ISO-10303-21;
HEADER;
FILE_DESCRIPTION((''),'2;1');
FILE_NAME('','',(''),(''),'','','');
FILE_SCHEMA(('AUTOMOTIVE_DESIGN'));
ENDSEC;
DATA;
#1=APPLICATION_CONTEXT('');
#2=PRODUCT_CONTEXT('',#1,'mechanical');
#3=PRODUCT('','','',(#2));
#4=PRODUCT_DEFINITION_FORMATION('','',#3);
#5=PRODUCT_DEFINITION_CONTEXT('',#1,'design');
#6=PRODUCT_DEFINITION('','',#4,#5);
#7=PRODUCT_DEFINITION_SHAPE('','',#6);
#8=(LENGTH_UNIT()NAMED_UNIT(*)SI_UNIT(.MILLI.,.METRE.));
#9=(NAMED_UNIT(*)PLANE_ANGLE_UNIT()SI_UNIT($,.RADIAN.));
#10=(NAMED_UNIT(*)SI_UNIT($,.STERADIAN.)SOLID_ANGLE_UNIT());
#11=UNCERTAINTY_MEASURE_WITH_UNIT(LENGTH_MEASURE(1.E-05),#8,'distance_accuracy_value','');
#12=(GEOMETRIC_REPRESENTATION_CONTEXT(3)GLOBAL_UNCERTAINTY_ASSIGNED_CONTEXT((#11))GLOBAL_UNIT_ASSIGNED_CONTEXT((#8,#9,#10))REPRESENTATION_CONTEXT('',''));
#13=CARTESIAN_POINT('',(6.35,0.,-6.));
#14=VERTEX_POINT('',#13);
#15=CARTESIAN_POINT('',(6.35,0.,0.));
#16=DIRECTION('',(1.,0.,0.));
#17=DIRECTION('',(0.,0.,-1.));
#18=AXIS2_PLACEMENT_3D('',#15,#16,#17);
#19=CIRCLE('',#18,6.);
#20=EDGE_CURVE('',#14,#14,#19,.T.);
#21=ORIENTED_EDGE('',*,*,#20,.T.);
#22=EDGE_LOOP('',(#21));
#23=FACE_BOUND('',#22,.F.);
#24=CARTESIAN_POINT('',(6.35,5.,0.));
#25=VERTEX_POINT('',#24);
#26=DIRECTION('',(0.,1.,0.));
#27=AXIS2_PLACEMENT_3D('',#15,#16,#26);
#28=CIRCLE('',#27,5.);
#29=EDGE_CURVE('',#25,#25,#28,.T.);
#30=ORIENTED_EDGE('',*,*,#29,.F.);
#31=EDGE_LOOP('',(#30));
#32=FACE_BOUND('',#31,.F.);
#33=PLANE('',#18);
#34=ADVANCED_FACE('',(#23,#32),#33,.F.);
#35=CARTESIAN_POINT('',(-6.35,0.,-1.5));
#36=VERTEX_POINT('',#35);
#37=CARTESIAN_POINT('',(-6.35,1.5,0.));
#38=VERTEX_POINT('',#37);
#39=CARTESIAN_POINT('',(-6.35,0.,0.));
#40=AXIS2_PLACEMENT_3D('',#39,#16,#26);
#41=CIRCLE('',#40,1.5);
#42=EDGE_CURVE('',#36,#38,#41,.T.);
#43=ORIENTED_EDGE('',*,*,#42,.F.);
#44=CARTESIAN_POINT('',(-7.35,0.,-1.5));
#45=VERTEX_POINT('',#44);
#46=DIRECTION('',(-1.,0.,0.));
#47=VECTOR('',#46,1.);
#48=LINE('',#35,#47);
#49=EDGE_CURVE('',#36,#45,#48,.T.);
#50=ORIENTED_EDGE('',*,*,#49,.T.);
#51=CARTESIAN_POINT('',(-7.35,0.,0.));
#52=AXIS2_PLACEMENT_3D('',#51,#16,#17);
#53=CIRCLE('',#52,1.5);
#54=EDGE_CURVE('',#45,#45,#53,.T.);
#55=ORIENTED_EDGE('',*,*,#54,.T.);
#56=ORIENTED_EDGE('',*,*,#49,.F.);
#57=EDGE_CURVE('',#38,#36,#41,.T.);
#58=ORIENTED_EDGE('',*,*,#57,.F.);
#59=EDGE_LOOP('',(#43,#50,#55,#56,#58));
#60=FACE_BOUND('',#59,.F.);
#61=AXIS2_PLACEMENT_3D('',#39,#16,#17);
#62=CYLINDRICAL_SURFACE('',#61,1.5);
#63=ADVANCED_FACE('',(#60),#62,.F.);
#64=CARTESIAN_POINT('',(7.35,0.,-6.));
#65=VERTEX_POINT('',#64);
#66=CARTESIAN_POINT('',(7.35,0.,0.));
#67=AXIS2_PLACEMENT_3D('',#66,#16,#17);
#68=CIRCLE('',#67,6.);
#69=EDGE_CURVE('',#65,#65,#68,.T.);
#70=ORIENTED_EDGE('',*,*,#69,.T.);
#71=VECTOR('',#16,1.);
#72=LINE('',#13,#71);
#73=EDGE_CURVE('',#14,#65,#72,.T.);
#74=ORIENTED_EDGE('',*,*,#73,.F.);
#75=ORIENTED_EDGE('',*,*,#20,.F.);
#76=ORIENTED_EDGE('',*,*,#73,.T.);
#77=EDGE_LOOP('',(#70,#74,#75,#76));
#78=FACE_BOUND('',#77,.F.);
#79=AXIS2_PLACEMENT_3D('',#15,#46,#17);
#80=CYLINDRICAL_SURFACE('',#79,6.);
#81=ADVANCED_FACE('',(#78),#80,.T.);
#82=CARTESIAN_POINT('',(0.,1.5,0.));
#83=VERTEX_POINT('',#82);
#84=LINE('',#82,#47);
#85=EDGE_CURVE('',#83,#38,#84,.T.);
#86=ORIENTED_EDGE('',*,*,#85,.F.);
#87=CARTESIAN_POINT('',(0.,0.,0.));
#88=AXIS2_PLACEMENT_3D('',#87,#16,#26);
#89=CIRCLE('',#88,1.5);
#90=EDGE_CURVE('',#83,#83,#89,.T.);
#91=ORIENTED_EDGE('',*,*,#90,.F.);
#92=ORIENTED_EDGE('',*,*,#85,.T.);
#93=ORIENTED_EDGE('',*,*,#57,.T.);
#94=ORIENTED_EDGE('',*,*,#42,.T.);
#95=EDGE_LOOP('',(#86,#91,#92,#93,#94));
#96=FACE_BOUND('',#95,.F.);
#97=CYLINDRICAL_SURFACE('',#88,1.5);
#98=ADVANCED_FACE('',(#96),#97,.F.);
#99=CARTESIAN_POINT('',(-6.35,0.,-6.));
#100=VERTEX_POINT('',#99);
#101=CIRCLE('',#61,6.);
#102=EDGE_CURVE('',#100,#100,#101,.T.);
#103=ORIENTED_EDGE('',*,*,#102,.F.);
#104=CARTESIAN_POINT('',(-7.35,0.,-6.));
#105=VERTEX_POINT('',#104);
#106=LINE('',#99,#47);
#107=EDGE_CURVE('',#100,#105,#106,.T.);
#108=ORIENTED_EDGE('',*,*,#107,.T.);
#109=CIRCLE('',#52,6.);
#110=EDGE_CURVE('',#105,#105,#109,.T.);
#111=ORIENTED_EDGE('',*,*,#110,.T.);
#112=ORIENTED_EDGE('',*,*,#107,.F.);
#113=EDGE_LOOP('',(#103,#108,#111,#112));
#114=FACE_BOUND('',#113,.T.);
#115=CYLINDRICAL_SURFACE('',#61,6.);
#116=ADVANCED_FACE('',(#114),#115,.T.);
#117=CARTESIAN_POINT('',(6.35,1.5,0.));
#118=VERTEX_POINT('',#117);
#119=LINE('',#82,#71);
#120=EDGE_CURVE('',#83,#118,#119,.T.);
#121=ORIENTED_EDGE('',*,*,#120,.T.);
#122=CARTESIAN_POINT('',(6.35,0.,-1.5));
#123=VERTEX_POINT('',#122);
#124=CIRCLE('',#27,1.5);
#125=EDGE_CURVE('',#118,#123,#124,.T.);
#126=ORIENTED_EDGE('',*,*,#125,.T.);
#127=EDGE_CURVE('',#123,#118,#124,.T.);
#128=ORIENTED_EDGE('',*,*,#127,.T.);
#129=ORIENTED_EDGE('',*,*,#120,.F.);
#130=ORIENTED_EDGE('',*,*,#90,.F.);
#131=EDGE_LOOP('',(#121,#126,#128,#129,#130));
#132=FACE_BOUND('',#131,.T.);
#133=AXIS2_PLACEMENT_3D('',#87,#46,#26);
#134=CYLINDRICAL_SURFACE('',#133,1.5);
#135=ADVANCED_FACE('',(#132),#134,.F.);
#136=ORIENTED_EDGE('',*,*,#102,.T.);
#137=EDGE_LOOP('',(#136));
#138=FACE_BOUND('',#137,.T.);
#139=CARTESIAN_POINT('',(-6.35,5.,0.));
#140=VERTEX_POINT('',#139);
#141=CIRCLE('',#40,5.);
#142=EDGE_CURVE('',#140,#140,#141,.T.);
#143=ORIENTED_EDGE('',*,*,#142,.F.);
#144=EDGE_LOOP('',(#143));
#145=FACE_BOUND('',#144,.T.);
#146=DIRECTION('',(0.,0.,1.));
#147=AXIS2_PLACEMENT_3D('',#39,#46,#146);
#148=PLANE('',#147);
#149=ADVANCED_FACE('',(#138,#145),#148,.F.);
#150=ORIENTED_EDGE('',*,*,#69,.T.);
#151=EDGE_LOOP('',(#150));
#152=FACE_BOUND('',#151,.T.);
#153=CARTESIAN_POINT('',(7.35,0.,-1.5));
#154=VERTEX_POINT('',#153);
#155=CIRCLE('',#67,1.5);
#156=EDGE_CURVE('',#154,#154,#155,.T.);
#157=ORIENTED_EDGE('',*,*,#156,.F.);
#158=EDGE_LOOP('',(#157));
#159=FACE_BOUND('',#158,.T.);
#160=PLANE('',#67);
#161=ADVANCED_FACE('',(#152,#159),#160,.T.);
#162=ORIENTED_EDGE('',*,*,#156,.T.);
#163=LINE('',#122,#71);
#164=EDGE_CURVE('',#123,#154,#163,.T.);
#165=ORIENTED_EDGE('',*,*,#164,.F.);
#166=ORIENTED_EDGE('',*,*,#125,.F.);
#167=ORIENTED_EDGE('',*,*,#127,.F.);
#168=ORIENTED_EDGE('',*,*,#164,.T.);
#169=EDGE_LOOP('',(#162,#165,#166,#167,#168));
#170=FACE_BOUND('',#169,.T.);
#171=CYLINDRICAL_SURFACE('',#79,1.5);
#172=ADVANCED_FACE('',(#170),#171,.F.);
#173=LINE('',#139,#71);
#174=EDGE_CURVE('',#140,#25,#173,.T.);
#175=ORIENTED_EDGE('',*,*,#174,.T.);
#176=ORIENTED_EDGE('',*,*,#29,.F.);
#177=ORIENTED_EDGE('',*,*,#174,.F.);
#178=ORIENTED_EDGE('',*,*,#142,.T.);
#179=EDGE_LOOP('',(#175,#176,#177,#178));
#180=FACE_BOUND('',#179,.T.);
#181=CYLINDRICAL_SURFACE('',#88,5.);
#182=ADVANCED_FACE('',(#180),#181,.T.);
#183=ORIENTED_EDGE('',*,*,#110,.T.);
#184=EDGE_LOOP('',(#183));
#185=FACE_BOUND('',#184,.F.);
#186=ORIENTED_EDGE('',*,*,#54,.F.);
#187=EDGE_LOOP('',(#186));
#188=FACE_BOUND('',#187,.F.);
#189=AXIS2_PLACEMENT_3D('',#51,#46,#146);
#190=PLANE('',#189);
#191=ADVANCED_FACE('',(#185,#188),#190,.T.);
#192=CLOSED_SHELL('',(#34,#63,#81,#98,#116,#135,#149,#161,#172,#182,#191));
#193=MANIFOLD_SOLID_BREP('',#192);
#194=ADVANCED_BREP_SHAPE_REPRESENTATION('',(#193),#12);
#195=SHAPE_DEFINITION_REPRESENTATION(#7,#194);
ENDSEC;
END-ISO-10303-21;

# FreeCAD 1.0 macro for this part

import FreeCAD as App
import Part
import Sketcher
Q = App.Units.Quantity

doc = App.newDocument("Part")
body = doc.addObject("PartDesign::Body", "Body")

sketch1 = body.newObject("Sketcher::SketchObject", "Sketch")
sketch1.AttachmentSupport = (doc.getObject("YZ_Plane"), [""])
sketch1.MapMode = "FlatFace"
sketch1.addGeometry([
    Part.Circle(App.Vector(0, 0, 0), App.Vector(0, 0, 1), 5),
    Part.Circle(App.Vector(0, 0, 0), App.Vector(0, 0, 1), 1.5),
], False)
sketch1.addConstraint([
    Sketcher.Constraint("Coincident", 0, 3, -1, 1),
    Sketcher.Constraint("Coincident", 1, 3, -1, 1),
    Sketcher.Constraint("Diameter", 0, Q("10 mm")),
    Sketcher.Constraint("Diameter", 1, Q("3 mm")),
])
pad1 = body.newObject("PartDesign::Pad", "Pad")
pad1.Profile = sketch1
pad1.Length = 12.7
pad1.Midplane = True

sketch2 = body.newObject("Sketcher::SketchObject", "Sketch001")
sketch2.AttachmentSupport = (doc.getObject("YZ_Plane"), [""])
sketch2.MapMode = "FlatFace"
sketch2.AttachmentOffset = App.Placement(App.Vector(0, 0, 6.35), App.Rotation())
sketch2.addGeometry([
    Part.Circle(App.Vector(0, 0, 0), App.Vector(0, 0, 1), 6),
    Part.Circle(App.Vector(0, 0, 0), App.Vector(0, 0, 1), 1.5),
], False)
sketch2.addConstraint([
    Sketcher.Constraint("Coincident", 0, 3, -1, 1),
    Sketcher.Constraint("Coincident", 1, 3, -1, 1),
    Sketcher.Constraint("Diameter", 0, Q("12 mm")),
    Sketcher.Constraint("Diameter", 1, Q("3 mm")),
])
pad2 = body.newObject("PartDesign::Pad", "Pad001")
pad2.Profile = sketch2
pad2.Length = 1
doc.recompute()

mirrored = body.newObject("PartDesign::Mirrored", "Mirrored")
mirrored.Originals = [pad2]
mirrored.MirrorPlane = (doc.getObject("YZ_Plane"), [""])
body.Tip = mirrored

doc.recompute()
